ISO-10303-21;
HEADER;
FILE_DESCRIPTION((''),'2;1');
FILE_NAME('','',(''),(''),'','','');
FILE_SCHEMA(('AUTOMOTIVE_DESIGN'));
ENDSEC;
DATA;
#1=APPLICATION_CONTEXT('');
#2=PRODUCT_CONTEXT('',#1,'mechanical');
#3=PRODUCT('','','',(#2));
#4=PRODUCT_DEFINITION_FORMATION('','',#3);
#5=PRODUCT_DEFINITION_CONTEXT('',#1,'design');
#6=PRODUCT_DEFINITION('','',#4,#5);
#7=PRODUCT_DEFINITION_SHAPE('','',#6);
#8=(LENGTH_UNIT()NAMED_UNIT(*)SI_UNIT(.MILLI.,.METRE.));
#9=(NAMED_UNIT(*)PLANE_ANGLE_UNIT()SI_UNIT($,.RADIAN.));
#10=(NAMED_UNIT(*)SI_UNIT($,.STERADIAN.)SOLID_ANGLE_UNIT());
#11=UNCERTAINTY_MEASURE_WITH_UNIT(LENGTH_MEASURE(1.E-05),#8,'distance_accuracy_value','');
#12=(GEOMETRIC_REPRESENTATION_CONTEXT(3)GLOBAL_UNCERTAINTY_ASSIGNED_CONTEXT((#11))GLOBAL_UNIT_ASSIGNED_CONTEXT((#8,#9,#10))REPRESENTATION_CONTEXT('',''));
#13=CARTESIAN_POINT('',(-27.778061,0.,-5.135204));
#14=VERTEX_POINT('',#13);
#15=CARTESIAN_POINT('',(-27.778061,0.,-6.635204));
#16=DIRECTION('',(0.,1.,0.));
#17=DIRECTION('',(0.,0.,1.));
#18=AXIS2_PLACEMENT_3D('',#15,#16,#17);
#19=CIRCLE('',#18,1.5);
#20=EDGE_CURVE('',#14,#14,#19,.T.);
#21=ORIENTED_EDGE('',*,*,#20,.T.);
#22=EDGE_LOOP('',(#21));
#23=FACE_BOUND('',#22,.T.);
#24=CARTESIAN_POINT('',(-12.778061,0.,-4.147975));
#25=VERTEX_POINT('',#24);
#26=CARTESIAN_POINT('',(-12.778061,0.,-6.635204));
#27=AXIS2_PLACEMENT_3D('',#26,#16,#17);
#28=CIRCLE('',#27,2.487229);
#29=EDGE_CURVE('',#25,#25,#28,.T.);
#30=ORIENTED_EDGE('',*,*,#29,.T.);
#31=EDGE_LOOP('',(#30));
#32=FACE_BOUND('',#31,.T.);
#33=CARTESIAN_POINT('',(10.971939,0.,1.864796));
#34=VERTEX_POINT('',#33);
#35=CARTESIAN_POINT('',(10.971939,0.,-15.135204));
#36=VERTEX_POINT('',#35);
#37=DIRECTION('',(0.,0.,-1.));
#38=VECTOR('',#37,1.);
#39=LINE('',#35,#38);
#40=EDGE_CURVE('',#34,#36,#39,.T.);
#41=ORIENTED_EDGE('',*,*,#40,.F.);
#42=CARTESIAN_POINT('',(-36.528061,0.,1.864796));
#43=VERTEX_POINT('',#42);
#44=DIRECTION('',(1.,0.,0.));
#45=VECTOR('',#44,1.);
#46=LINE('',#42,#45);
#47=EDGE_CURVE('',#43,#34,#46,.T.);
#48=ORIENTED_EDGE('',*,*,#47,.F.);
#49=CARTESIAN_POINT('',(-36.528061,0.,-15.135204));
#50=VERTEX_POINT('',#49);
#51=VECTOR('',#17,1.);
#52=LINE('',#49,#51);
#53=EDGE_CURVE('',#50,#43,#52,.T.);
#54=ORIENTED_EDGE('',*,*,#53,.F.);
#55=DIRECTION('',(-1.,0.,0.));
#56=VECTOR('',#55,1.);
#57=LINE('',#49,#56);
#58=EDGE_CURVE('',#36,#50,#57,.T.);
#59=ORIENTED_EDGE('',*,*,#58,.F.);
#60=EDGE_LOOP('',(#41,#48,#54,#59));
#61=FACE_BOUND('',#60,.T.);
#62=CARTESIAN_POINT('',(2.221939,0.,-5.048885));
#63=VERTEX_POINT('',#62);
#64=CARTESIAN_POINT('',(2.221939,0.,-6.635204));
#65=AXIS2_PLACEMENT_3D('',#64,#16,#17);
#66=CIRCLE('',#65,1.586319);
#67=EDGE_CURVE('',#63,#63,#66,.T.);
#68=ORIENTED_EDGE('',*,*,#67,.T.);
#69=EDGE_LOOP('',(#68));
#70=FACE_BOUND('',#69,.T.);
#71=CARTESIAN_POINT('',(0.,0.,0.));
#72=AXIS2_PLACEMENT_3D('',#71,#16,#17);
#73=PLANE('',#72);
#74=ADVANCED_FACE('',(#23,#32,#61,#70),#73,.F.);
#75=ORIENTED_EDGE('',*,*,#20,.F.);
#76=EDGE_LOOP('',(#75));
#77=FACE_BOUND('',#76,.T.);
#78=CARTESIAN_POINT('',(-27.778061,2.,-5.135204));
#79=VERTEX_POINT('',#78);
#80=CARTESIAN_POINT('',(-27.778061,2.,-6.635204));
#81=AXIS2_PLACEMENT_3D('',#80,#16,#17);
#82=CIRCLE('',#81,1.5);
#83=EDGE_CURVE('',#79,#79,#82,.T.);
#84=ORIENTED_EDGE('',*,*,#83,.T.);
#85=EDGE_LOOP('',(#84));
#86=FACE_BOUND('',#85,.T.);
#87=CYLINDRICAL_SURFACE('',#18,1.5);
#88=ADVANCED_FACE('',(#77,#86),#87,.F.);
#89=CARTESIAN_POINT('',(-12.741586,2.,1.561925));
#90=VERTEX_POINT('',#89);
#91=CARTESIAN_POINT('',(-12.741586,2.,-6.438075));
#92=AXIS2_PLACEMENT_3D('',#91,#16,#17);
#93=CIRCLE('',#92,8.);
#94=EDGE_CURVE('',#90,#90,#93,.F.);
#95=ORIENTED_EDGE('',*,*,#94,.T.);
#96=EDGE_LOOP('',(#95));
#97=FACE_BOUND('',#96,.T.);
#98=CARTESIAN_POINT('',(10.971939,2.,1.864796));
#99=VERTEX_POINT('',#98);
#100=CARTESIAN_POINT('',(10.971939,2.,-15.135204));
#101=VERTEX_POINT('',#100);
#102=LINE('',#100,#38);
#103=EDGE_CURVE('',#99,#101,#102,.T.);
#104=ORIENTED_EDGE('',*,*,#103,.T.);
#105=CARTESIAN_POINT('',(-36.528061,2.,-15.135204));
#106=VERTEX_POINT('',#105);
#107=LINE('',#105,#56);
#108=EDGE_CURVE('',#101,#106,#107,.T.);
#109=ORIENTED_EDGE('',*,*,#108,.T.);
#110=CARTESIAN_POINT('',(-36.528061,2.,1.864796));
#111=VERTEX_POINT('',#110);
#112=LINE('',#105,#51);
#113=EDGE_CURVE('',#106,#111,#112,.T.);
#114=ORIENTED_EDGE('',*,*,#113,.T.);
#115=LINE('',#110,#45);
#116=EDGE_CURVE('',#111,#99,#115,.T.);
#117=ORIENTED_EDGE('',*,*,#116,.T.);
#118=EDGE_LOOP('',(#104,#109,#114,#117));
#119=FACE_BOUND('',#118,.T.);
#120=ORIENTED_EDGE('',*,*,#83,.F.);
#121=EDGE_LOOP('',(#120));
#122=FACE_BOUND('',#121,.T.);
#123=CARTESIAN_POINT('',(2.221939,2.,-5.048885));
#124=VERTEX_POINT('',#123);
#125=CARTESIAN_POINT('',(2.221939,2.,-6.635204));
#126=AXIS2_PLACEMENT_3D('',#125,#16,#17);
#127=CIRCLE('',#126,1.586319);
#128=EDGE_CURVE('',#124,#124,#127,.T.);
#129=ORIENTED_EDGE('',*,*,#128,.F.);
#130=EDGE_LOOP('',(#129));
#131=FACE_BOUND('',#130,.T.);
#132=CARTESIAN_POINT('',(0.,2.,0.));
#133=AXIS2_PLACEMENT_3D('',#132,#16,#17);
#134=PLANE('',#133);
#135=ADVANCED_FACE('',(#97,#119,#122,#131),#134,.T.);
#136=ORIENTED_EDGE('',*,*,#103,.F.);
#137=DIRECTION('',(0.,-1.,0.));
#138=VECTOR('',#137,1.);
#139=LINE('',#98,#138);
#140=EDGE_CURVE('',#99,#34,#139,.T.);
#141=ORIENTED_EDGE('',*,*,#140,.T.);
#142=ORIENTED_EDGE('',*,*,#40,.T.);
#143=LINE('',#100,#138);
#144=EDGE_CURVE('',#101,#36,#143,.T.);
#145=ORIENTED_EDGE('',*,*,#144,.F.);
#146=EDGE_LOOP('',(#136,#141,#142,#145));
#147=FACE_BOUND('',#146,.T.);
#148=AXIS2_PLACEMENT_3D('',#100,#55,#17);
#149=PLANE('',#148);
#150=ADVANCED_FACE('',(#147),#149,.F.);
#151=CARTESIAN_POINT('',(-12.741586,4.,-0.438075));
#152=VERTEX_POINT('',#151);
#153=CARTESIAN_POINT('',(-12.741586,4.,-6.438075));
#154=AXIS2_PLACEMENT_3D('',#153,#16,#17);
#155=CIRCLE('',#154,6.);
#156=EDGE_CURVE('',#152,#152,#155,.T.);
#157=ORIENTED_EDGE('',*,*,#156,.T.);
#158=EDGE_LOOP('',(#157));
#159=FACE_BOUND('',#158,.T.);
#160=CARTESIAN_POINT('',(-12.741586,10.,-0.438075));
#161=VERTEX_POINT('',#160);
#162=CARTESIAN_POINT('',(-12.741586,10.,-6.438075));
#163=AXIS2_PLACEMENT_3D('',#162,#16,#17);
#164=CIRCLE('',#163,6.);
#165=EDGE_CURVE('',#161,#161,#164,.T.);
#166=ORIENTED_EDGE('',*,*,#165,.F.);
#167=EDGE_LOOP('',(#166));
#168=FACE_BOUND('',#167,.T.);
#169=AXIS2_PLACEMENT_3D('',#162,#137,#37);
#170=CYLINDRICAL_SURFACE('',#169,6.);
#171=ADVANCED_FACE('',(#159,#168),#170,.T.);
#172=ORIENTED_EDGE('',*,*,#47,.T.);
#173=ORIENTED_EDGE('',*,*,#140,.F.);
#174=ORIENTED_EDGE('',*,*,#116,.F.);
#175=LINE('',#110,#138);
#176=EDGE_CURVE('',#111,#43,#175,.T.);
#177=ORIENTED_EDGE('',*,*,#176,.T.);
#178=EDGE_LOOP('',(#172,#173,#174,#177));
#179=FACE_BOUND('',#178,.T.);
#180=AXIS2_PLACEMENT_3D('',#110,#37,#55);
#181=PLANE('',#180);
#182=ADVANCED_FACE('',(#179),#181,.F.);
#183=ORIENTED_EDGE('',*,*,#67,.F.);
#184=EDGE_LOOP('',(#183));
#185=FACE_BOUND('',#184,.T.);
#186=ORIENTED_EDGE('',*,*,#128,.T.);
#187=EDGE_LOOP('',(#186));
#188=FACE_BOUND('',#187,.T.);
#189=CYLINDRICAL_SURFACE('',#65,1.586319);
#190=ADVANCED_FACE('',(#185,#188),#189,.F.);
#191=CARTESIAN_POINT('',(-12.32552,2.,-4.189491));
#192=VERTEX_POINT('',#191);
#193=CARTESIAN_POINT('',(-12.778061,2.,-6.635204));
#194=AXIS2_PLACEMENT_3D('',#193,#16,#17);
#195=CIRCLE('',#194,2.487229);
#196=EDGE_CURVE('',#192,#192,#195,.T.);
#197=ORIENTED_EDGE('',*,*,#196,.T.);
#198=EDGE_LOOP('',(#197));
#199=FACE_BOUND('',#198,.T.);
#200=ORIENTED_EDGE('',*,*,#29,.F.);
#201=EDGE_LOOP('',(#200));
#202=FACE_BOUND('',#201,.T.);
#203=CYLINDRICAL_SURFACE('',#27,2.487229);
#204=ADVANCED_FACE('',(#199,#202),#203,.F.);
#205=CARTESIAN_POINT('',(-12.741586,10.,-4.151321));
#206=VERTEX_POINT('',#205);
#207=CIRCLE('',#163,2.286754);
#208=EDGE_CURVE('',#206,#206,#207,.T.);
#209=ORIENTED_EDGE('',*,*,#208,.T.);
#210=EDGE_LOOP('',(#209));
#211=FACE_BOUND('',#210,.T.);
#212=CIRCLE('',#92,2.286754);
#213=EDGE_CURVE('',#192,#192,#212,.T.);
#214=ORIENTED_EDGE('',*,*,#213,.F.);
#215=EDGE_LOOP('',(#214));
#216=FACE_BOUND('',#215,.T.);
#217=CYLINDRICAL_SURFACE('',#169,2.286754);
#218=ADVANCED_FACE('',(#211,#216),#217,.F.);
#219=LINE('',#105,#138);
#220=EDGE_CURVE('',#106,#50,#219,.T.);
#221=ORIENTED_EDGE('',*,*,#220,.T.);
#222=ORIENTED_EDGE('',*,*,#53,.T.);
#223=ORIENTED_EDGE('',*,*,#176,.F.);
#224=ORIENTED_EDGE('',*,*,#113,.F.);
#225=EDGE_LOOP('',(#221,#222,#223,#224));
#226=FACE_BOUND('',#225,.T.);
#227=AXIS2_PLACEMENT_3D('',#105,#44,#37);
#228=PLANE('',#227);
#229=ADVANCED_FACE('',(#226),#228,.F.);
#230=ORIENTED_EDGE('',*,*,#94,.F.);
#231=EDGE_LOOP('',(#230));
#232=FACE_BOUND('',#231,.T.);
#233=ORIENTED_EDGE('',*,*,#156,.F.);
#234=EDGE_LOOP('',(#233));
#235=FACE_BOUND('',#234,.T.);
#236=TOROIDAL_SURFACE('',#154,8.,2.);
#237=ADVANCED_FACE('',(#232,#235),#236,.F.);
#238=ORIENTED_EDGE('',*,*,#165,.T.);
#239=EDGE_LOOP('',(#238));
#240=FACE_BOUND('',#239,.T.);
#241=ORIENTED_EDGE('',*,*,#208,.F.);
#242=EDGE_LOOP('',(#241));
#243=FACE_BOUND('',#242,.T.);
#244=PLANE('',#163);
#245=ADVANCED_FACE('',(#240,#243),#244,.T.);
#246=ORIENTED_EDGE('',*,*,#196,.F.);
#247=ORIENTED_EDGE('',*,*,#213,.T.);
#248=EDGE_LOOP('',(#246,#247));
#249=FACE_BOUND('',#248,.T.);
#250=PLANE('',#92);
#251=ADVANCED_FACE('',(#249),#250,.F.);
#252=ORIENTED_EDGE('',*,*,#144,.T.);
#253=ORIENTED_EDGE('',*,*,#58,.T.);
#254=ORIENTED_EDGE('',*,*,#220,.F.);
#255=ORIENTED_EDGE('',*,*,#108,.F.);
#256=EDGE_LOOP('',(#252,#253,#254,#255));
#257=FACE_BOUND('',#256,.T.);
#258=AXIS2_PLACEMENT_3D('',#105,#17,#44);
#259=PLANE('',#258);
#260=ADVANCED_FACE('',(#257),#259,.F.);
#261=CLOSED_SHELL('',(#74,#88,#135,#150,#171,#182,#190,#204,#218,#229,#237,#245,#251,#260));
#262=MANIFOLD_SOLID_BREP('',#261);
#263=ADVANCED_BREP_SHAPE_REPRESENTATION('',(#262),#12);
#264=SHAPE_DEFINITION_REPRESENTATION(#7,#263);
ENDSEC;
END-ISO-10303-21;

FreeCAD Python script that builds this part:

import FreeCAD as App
import Part
import Sketcher
from FreeCAD import Vector
Q = App.Units.Quantity


def edges_at(feature, points):
    """Names of the edges that pass closest to the given points."""
    edges = feature.Shape.Edges
    near = lambda p: min(range(len(edges)), key=lambda i: edges[i].distToShape(Part.Vertex(*p))[0])
    return sorted({f"Edge{near(p) + 1}" for p in points})


def add_polygon(sketch, points):
    """Adds a closed chain of lines whose ends are joined by coincident constraints."""
    first, n = sketch.GeometryCount, len(points)
    for a, b in zip(points, points[1:] + points[:1]):
        sketch.addGeometry(Part.LineSegment(App.Vector(*a, 0), App.Vector(*b, 0)), False)
    for i in range(n):
        sketch.addConstraint(Sketcher.Constraint("Coincident", first + i, 2, first + (i + 1) % n, 1))

doc = App.newDocument("Part")
body = doc.addObject("PartDesign::Body", "Body")

# Sketch on XZ plane
sketch1 = body.newObject("Sketcher::SketchObject", "Sketch")
sketch1.AttachmentSupport = (doc.getObject("XZ_Plane"), [""])
sketch1.MapMode = "FlatFace"
add_polygon(sketch1, [(-36.528061, -15.135204), (-36.528061, 1.864796), (10.971939, 1.864796), (10.971939, -15.135204)])  # lines 0-3
sketch1.addConstraint(Sketcher.Constraint("Vertical", 0))
sketch1.addConstraint(Sketcher.Constraint("Horizontal", 1))
sketch1.addConstraint(Sketcher.Constraint("Vertical", 2))
sketch1.addConstraint(Sketcher.Constraint("Horizontal", 3))
sketch1.addConstraint(Sketcher.Constraint("DistanceY", 0, 1, 0, 2, Q("17 mm")))
sketch1.addConstraint(Sketcher.Constraint("DistanceX", 1, 1, 1, 2, Q("47.5 mm")))
sketch1.addConstraint(Sketcher.Constraint("DistanceX", 0, 2, -1, 1, Q("36.528061 mm")))
sketch1.addConstraint(Sketcher.Constraint("DistanceY", -1, 1, 0, 2, Q("1.864796 mm")))
pad1 = body.newObject("PartDesign::Pad", "Pad")
pad1.Profile = sketch1
pad1.Length = 2
pad1.Reversed = True

# Sketch on XZ plane
sketch2 = body.newObject("Sketcher::SketchObject", "Sketch001")
sketch2.AttachmentSupport = (doc.getObject("XZ_Plane"), [""])
sketch2.MapMode = "FlatFace"
sketch2.AttachmentOffset = App.Placement(Vector(0, 0, -2), App.Rotation())
sketch2.addGeometry(Part.Circle(Vector(-12.778061, -6.635204, 0), Vector(0, 0, 1), 2.487229), False)
sketch2.addGeometry(Part.Circle(Vector(2.221939, -6.635204, 0), Vector(0, 0, 1), 1.586319), False)
sketch2.addGeometry(Part.Circle(Vector(-27.778061, -6.635204, 0), Vector(0, 0, 1), 1.5), False)
sketch2.addConstraint(Sketcher.Constraint("Horizontal", 0, 3, 1, 3))
sketch2.addConstraint(Sketcher.Constraint("Horizontal", 1, 3, 2, 3))
sketch2.addConstraint(Sketcher.Constraint("Diameter", 2, Q("3 mm")))
sketch2.addConstraint(Sketcher.Constraint("DistanceX", 0, 3, 1, 3, Q("15 mm")))
sketch2.addConstraint(Sketcher.Constraint("DistanceX", 2, 3, 0, 3, Q("15 mm")))
sketch2.addConstraint(Sketcher.Constraint("Diameter", 0, Q("4.974458 mm")))
sketch2.addConstraint(Sketcher.Constraint("Diameter", 1, Q("3.172638 mm")))
sketch2.addConstraint(Sketcher.Constraint("DistanceX", 0, 3, -1, 1, Q("12.778061 mm")))
sketch2.addConstraint(Sketcher.Constraint("DistanceY", 0, 3, -1, 1, Q("6.635204 mm")))
pocket1 = body.newObject("PartDesign::Pocket", "Pocket")
pocket1.Profile = sketch2
pocket1.Length = 2
pocket1.Reversed = True

# Sketch on XZ plane
sketch3 = body.newObject("Sketcher::SketchObject", "Sketch002")
sketch3.AttachmentSupport = (doc.getObject("XZ_Plane"), [""])
sketch3.MapMode = "FlatFace"
sketch3.AttachmentOffset = App.Placement(Vector(0, 0, -2), App.Rotation())
sketch3.addGeometry(Part.Circle(Vector(-12.741586, -6.438075, 0), Vector(0, 0, 1), 6), False)
sketch3.addGeometry(Part.Circle(Vector(-12.741586, -6.438075, 0), Vector(0, 0, 1), 2.286754), False)
sketch3.addConstraint(Sketcher.Constraint("Coincident", 1, 3, 0, 3))
sketch3.addConstraint(Sketcher.Constraint("Diameter", 0, Q("12 mm")))
sketch3.addConstraint(Sketcher.Constraint("Diameter", 1, Q("4.573507 mm")))
sketch3.addConstraint(Sketcher.Constraint("DistanceX", 0, 3, -1, 1, Q("12.741586 mm")))
sketch3.addConstraint(Sketcher.Constraint("DistanceY", 0, 3, -1, 1, Q("6.438075 mm")))
pad2 = body.newObject("PartDesign::Pad", "Pad001")
pad2.Profile = sketch3
pad2.Length = 8
pad2.Reversed = True
doc.recompute()

fillet = body.newObject("PartDesign::Fillet", "Fillet")
fillet.Base = (pad2, edges_at(pad2, [(-12.742, 2, -12.438)]))
fillet.Radius = 2

doc.recompute()
